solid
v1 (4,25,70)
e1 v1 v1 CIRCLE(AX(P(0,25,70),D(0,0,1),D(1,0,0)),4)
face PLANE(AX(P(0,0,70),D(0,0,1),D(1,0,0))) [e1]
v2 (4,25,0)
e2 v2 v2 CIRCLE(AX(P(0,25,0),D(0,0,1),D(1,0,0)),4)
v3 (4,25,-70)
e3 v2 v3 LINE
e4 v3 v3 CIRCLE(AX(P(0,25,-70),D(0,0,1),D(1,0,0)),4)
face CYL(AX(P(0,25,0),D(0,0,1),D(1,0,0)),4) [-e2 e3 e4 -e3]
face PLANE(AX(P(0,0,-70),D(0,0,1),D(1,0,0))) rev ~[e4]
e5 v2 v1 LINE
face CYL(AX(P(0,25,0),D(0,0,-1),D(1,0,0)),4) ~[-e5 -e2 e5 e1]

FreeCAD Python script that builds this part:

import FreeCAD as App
import Part
import Sketcher
from FreeCAD import Vector

doc = App.newDocument("Part")
params = doc.addObject("Spreadsheet::Sheet", "Params")
for row, (alias, value) in enumerate([
    ("sketch1_diameter", "8 mm"),
    ("pad1_length", "140 mm"),
], start=1):
    params.set(f"A{row}", alias)
    params.set(f"B{row}", "=" + value)
    params.setAlias(f"B{row}", alias)

body = doc.addObject("PartDesign::Body", "Body")

sketch1 = doc.addObject("Sketcher::SketchObject", "Sketch")
body.addObject(sketch1)
sketch1.AttachmentSupport = (doc.XY_Plane, [""])
sketch1.MapMode = "FlatFace"
sketch1.addGeometry(Part.Circle(Vector(0, 25, 0), Vector(0, 0, 1), 4), False)
sketch1.addConstraint(Sketcher.Constraint("PointOnObject", 0, 3, -2))
sketch1.addConstraint(Sketcher.Constraint("Diameter", 0, 8.0))
sketch1.addConstraint(Sketcher.Constraint("DistanceY", -1, 1, 0, 3, 25.0))
sketch1.setExpression("Constraints[1]", "Params.sketch1_diameter")
pad1 = doc.addObject("PartDesign::Pad", "Pad")
body.addObject(pad1)
pad1.Profile = sketch1
pad1.setExpression("Length", "Params.pad1_length")
pad1.Midplane = True

doc.recompute()
